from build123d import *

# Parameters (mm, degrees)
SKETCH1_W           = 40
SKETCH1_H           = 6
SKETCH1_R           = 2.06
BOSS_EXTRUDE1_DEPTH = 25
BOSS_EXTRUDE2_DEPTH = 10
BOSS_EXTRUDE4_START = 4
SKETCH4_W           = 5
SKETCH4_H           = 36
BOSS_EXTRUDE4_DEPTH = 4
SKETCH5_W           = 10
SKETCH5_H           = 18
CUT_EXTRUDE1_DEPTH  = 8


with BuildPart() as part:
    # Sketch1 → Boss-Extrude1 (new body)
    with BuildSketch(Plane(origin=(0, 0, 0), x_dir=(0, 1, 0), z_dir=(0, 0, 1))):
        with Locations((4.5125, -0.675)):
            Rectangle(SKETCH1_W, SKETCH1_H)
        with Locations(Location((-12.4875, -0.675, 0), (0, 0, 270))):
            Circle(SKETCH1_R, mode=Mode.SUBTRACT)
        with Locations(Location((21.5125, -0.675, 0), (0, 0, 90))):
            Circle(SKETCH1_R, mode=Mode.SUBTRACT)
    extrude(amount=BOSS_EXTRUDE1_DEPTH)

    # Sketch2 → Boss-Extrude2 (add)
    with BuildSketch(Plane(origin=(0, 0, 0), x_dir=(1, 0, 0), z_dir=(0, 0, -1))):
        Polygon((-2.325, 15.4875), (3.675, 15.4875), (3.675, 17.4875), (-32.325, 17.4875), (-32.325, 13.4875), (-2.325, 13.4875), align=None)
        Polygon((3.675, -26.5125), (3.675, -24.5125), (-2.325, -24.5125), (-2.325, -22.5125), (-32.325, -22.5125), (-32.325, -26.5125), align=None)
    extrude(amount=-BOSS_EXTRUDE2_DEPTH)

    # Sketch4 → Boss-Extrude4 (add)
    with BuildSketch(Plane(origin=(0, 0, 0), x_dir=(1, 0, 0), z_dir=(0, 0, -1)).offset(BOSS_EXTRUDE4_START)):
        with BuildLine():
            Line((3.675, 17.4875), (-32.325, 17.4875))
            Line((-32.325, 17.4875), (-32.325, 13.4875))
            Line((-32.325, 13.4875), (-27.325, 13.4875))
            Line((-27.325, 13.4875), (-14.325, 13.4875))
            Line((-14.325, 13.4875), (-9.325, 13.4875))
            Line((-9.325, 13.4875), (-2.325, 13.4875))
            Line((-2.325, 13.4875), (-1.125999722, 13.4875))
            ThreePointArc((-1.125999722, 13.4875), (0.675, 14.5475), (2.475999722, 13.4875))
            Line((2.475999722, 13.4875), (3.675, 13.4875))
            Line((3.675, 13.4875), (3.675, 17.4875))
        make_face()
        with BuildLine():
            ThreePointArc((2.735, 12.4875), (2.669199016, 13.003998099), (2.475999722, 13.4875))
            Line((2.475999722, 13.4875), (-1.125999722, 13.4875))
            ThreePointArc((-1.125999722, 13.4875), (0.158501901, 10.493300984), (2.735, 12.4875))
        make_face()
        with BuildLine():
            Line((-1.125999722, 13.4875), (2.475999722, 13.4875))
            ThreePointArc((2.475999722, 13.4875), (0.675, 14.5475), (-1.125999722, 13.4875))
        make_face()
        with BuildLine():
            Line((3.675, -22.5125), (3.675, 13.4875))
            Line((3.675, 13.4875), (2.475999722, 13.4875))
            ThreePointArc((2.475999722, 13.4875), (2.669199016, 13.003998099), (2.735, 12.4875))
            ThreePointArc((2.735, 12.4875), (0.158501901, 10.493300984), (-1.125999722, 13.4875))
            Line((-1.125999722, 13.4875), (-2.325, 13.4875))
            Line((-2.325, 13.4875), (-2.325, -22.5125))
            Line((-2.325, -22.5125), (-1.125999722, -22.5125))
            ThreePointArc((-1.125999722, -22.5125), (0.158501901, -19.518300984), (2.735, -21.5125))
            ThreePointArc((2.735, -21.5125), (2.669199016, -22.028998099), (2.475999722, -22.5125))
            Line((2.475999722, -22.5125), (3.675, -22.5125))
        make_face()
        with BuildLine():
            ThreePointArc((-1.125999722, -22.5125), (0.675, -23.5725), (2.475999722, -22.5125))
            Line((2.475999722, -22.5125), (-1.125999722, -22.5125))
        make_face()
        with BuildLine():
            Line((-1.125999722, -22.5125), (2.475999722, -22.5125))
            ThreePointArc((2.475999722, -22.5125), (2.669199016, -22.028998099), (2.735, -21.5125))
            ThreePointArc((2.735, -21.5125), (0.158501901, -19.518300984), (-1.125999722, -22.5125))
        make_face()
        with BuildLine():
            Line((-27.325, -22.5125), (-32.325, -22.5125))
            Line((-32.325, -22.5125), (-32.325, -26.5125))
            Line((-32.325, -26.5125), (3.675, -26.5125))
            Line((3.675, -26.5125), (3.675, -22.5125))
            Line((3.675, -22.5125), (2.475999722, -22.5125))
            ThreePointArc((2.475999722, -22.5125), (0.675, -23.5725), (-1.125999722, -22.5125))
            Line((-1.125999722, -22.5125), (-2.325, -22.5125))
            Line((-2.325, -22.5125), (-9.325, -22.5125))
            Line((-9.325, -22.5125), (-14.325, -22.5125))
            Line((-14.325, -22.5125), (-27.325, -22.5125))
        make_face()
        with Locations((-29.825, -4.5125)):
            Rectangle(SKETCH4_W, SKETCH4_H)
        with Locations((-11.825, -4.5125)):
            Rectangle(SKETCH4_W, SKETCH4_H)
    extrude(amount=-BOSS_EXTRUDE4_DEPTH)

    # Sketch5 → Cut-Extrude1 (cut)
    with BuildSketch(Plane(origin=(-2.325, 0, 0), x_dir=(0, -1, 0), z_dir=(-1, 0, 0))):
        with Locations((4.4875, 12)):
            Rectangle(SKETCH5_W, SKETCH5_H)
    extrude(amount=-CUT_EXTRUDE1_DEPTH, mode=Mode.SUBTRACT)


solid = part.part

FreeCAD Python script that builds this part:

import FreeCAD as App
import Part
import Sketcher
from FreeCAD import Vector
Q = App.Units.Quantity


def add_polygon(sketch, points):
    """Adds a closed chain of lines whose ends are joined by coincident constraints."""
    first, n = sketch.GeometryCount, len(points)
    for a, b in zip(points, points[1:] + points[:1]):
        sketch.addGeometry(Part.LineSegment(App.Vector(*a, 0), App.Vector(*b, 0)), False)
    for i in range(n):
        sketch.addConstraint(Sketcher.Constraint("Coincident", first + i, 2, first + (i + 1) % n, 1))

doc = App.newDocument("Part")
params = doc.addObject("Spreadsheet::Sheet", "Params")
for row, (alias, value) in enumerate([
    ("sketch1_diameter", "4.12 mm"),
    ("sketch1_width", "6 mm"),
    ("sketch1_height", "40 mm"),
    ("pad1_length", "25 mm"),
    ("sketch2_width", "6 mm"),
    ("sketch2_width2", "36 mm"),
    ("sketch2_height", "2 mm"),
    ("pad2_length", "10 mm"),
    ("sketch3_width", "36 mm"),
    ("sketch3_width2", "13 mm"),
    ("sketch3_width3", "7 mm"),
    ("sketch3_height", "44 mm"),
    ("pad3_length", "4 mm"),
    ("sketch4_width", "10 mm"),
    ("sketch4_height", "18 mm"),
    ("pocket1_length", "8 mm"),
], start=1):
    params.set(f"A{row}", alias)
    params.set(f"B{row}", "=" + value)
    params.setAlias(f"B{row}", alias)

body = doc.addObject("PartDesign::Body", "Body")

# Sketch on XY plane
sketch1 = body.newObject("Sketcher::SketchObject", "Sketch")
sketch1.AttachmentSupport = (doc.getObject("XY_Plane"), [""])
sketch1.MapMode = "FlatFace"
add_polygon(sketch1, [(-2.3, -15.5), (3.7, -15.5), (3.7, 24.5), (-2.3, 24.5)])  # lines 0-3
sketch1.addGeometry(Part.Circle(Vector(0.7, -12.5, 0), Vector(0, 0, 1), 2.1), False)  # 4
sketch1.addGeometry(Part.Circle(Vector(0.7, 21.5, 0), Vector(0, 0, 1), 2.1), False)  # 5
sketch1.addConstraint(Sketcher.Constraint("Horizontal", 0))
sketch1.addConstraint(Sketcher.Constraint("Vertical", 1))
sketch1.addConstraint(Sketcher.Constraint("Horizontal", 2))
sketch1.addConstraint(Sketcher.Constraint("Vertical", 3))
sketch1.addConstraint(Sketcher.Constraint("Equal", 4, 5))
sketch1.addConstraint(Sketcher.Constraint("Vertical", 4, 3, 5, 3))
sketch1.addConstraint(Sketcher.Constraint("Diameter", 4, Q("4.12 mm")))
sketch1.addConstraint(Sketcher.Constraint("DistanceX", 0, 1, 0, 2, Q("6 mm")))
sketch1.addConstraint(Sketcher.Constraint("DistanceY", 1, 1, 1, 2, Q("40 mm")))
sketch1.addConstraint(Sketcher.Constraint("DistanceY", 4, 3, 5, 3, Q("34 mm")))
sketch1.addConstraint(Sketcher.Constraint("DistanceX", 4, 3, 0, 2, Q("3 mm")))
sketch1.addConstraint(Sketcher.Constraint("DistanceY", 0, 2, 4, 3, Q("3 mm")))
sketch1.addConstraint(Sketcher.Constraint("DistanceX", -1, 1, 4, 3, Q("0.675 mm")))
sketch1.addConstraint(Sketcher.Constraint("DistanceY", 4, 3, -1, 1, Q("12.4875 mm")))
sketch1.setExpression("Constraints[10]", "Params.sketch1_diameter")
sketch1.setExpression("Constraints[11]", "Params.sketch1_width")
sketch1.setExpression("Constraints[12]", "Params.sketch1_height")
pad1 = body.newObject("PartDesign::Pad", "Pad")
pad1.Profile = sketch1
pad1.setExpression("Length", "Params.pad1_length")

# Sketch on XY plane
sketch2 = body.newObject("Sketcher::SketchObject", "Sketch001")
sketch2.AttachmentSupport = (doc.getObject("XY_Plane"), [""])
sketch2.MapMode = "FlatFace"
add_polygon(sketch2, [(-2.3, -15.5), (3.7, -15.5), (3.7, -17.5), (-32.3, -17.5), (-32.3, -13.5), (-2.3, -13.5)])  # lines 0-5
add_polygon(sketch2, [(3.7, 26.5), (3.7, 24.5), (-2.3, 24.5), (-2.3, 22.5), (-32.3, 22.5), (-32.3, 26.5)])  # lines 6-11
sketch2.addConstraint(Sketcher.Constraint("Horizontal", 0))
sketch2.addConstraint(Sketcher.Constraint("Vertical", 1))
sketch2.addConstraint(Sketcher.Constraint("Horizontal", 2))
sketch2.addConstraint(Sketcher.Constraint("Vertical", 3))
sketch2.addConstraint(Sketcher.Constraint("Horizontal", 4))
sketch2.addConstraint(Sketcher.Constraint("Vertical", 5))
sketch2.addConstraint(Sketcher.Constraint("Vertical", 6))
sketch2.addConstraint(Sketcher.Constraint("Horizontal", 7))
sketch2.addConstraint(Sketcher.Constraint("Vertical", 8))
sketch2.addConstraint(Sketcher.Constraint("Horizontal", 9))
sketch2.addConstraint(Sketcher.Constraint("Vertical", 10))
sketch2.addConstraint(Sketcher.Constraint("Horizontal", 11))
sketch2.addConstraint(Sketcher.Constraint("Vertical", 1, 2, 6, 2))
sketch2.addConstraint(Sketcher.Constraint("Vertical", 5, 2, 7, 2))
sketch2.addConstraint(Sketcher.Constraint("Vertical", 3, 2, 9, 2))
sketch2.addConstraint(Sketcher.Constraint("Equal", 1, 5))
sketch2.addConstraint(Sketcher.Constraint("Equal", 5, 6))
sketch2.addConstraint(Sketcher.Constraint("Equal", 6, 8))
sketch2.addConstraint(Sketcher.Constraint("DistanceX", 0, 1, 0, 2, Q("6 mm")))
sketch2.addConstraint(Sketcher.Constraint("DistanceX", 2, 2, 2, 1, Q("36 mm")))
sketch2.addConstraint(Sketcher.Constraint("DistanceY", 1, 2, 1, 1, Q("2 mm")))
sketch2.addConstraint(Sketcher.Constraint("DistanceY", 4, 2, 6, 2, Q("38 mm")))
sketch2.addConstraint(Sketcher.Constraint("DistanceX", -1, 1, 0, 2, Q("3.675 mm")))
sketch2.addConstraint(Sketcher.Constraint("DistanceY", 0, 2, -1, 1, Q("15.4875 mm")))
sketch2.setExpression("Constraints[30]", "Params.sketch2_width")
sketch2.setExpression("Constraints[31]", "Params.sketch2_width2")
sketch2.setExpression("Constraints[32]", "Params.sketch2_height")
pad2 = body.newObject("PartDesign::Pad", "Pad001")
pad2.Profile = sketch2
pad2.setExpression("Length", "Params.pad2_length")

# Sketch on XY plane
sketch3 = body.newObject("Sketcher::SketchObject", "Sketch002")
sketch3.AttachmentSupport = (doc.getObject("XY_Plane"), [""])
sketch3.MapMode = "FlatFace"
sketch3.AttachmentOffset = App.Placement(Vector(0, 0, -4), App.Rotation())
add_polygon(sketch3, [(4, -17), (-32, -17), (-32, 27), (4, 27)])  # lines 0-3
add_polygon(sketch3, [(-27, -13), (-14, -13), (-14, 23), (-27, 23)])  # lines 4-7
add_polygon(sketch3, [(-9, -13), (-2, -13), (-2, 23), (-9, 23)])  # lines 8-11
sketch3.addConstraint(Sketcher.Constraint("Horizontal", 0))
sketch3.addConstraint(Sketcher.Constraint("Vertical", 1))
sketch3.addConstraint(Sketcher.Constraint("Horizontal", 2))
sketch3.addConstraint(Sketcher.Constraint("Vertical", 3))
sketch3.addConstraint(Sketcher.Constraint("Horizontal", 4))
sketch3.addConstraint(Sketcher.Constraint("Vertical", 5))
sketch3.addConstraint(Sketcher.Constraint("Horizontal", 6))
sketch3.addConstraint(Sketcher.Constraint("Vertical", 7))
sketch3.addConstraint(Sketcher.Constraint("Horizontal", 8))
sketch3.addConstraint(Sketcher.Constraint("Vertical", 9))
sketch3.addConstraint(Sketcher.Constraint("Horizontal", 10))
sketch3.addConstraint(Sketcher.Constraint("Vertical", 11))
sketch3.addConstraint(Sketcher.Constraint("Horizontal", 7, 2, 8, 2))
sketch3.addConstraint(Sketcher.Constraint("Horizontal", 6, 2, 9, 2))
sketch3.addConstraint(Sketcher.Constraint("Equal", 2, 5))
sketch3.addConstraint(Sketcher.Constraint("DistanceX", 0, 2, 0, 1, Q("36 mm")))
sketch3.addConstraint(Sketcher.Constraint("DistanceX", 4, 1, 4, 2, Q("13 mm")))
sketch3.addConstraint(Sketcher.Constraint("DistanceX", 8, 1, 8, 2, Q("7 mm")))
sketch3.addConstraint(Sketcher.Constraint("DistanceY", 1, 1, 1, 2, Q("44 mm")))
sketch3.addConstraint(Sketcher.Constraint("DistanceX", 4, 2, 3, 2, Q("18 mm")))
sketch3.addConstraint(Sketcher.Constraint("DistanceY", 3, 2, 4, 2, Q("4 mm")))
sketch3.addConstraint(Sketcher.Constraint("DistanceX", 8, 2, 3, 2, Q("6 mm")))
sketch3.addConstraint(Sketcher.Constraint("DistanceX", 0, 2, -1, 1, Q("32.325 mm")))
sketch3.addConstraint(Sketcher.Constraint("DistanceY", 0, 2, -1, 1, Q("17.4875 mm")))
sketch3.setExpression("Constraints[27]", "Params.sketch3_width")
sketch3.setExpression("Constraints[28]", "Params.sketch3_width2")
sketch3.setExpression("Constraints[29]", "Params.sketch3_width3")
sketch3.setExpression("Constraints[30]", "Params.sketch3_height")
pad3 = body.newObject("PartDesign::Pad", "Pad002")
pad3.Profile = sketch3
pad3.setExpression("Length", "Params.pad3_length")

# Sketch on YZ plane
sketch4 = body.newObject("Sketcher::SketchObject", "Sketch003")
sketch4.AttachmentSupport = (doc.getObject("YZ_Plane"), [""])
sketch4.MapMode = "FlatFace"
sketch4.AttachmentOffset = App.Placement(Vector(0, 0, -2.325), App.Rotation())
add_polygon(sketch4, [(1, 21), (1, 3), (-9, 3), (-9, 21)])  # lines 0-3
sketch4.addConstraint(Sketcher.Constraint("Vertical", 0))
sketch4.addConstraint(Sketcher.Constraint("Horizontal", 1))
sketch4.addConstraint(Sketcher.Constraint("Vertical", 2))
sketch4.addConstraint(Sketcher.Constraint("Horizontal", 3))
sketch4.addConstraint(Sketcher.Constraint("DistanceX", 1, 2, 1, 1, Q("10 mm")))
sketch4.addConstraint(Sketcher.Constraint("DistanceY", 0, 2, 0, 1, Q("18 mm")))
sketch4.addConstraint(Sketcher.Constraint("DistanceY", -1, 1, 0, 2, Q("3 mm")))
sketch4.addConstraint(Sketcher.Constraint("DistanceX", -1, 1, 0, 2, Q("0.5125 mm")))
sketch4.setExpression("Constraints[8]", "Params.sketch4_width")
sketch4.setExpression("Constraints[9]", "Params.sketch4_height")
pocket1 = body.newObject("PartDesign::Pocket", "Pocket")
pocket1.Profile = sketch4
pocket1.setExpression("Length", "Params.pocket1_length")
pocket1.Reversed = True

doc.recompute()
